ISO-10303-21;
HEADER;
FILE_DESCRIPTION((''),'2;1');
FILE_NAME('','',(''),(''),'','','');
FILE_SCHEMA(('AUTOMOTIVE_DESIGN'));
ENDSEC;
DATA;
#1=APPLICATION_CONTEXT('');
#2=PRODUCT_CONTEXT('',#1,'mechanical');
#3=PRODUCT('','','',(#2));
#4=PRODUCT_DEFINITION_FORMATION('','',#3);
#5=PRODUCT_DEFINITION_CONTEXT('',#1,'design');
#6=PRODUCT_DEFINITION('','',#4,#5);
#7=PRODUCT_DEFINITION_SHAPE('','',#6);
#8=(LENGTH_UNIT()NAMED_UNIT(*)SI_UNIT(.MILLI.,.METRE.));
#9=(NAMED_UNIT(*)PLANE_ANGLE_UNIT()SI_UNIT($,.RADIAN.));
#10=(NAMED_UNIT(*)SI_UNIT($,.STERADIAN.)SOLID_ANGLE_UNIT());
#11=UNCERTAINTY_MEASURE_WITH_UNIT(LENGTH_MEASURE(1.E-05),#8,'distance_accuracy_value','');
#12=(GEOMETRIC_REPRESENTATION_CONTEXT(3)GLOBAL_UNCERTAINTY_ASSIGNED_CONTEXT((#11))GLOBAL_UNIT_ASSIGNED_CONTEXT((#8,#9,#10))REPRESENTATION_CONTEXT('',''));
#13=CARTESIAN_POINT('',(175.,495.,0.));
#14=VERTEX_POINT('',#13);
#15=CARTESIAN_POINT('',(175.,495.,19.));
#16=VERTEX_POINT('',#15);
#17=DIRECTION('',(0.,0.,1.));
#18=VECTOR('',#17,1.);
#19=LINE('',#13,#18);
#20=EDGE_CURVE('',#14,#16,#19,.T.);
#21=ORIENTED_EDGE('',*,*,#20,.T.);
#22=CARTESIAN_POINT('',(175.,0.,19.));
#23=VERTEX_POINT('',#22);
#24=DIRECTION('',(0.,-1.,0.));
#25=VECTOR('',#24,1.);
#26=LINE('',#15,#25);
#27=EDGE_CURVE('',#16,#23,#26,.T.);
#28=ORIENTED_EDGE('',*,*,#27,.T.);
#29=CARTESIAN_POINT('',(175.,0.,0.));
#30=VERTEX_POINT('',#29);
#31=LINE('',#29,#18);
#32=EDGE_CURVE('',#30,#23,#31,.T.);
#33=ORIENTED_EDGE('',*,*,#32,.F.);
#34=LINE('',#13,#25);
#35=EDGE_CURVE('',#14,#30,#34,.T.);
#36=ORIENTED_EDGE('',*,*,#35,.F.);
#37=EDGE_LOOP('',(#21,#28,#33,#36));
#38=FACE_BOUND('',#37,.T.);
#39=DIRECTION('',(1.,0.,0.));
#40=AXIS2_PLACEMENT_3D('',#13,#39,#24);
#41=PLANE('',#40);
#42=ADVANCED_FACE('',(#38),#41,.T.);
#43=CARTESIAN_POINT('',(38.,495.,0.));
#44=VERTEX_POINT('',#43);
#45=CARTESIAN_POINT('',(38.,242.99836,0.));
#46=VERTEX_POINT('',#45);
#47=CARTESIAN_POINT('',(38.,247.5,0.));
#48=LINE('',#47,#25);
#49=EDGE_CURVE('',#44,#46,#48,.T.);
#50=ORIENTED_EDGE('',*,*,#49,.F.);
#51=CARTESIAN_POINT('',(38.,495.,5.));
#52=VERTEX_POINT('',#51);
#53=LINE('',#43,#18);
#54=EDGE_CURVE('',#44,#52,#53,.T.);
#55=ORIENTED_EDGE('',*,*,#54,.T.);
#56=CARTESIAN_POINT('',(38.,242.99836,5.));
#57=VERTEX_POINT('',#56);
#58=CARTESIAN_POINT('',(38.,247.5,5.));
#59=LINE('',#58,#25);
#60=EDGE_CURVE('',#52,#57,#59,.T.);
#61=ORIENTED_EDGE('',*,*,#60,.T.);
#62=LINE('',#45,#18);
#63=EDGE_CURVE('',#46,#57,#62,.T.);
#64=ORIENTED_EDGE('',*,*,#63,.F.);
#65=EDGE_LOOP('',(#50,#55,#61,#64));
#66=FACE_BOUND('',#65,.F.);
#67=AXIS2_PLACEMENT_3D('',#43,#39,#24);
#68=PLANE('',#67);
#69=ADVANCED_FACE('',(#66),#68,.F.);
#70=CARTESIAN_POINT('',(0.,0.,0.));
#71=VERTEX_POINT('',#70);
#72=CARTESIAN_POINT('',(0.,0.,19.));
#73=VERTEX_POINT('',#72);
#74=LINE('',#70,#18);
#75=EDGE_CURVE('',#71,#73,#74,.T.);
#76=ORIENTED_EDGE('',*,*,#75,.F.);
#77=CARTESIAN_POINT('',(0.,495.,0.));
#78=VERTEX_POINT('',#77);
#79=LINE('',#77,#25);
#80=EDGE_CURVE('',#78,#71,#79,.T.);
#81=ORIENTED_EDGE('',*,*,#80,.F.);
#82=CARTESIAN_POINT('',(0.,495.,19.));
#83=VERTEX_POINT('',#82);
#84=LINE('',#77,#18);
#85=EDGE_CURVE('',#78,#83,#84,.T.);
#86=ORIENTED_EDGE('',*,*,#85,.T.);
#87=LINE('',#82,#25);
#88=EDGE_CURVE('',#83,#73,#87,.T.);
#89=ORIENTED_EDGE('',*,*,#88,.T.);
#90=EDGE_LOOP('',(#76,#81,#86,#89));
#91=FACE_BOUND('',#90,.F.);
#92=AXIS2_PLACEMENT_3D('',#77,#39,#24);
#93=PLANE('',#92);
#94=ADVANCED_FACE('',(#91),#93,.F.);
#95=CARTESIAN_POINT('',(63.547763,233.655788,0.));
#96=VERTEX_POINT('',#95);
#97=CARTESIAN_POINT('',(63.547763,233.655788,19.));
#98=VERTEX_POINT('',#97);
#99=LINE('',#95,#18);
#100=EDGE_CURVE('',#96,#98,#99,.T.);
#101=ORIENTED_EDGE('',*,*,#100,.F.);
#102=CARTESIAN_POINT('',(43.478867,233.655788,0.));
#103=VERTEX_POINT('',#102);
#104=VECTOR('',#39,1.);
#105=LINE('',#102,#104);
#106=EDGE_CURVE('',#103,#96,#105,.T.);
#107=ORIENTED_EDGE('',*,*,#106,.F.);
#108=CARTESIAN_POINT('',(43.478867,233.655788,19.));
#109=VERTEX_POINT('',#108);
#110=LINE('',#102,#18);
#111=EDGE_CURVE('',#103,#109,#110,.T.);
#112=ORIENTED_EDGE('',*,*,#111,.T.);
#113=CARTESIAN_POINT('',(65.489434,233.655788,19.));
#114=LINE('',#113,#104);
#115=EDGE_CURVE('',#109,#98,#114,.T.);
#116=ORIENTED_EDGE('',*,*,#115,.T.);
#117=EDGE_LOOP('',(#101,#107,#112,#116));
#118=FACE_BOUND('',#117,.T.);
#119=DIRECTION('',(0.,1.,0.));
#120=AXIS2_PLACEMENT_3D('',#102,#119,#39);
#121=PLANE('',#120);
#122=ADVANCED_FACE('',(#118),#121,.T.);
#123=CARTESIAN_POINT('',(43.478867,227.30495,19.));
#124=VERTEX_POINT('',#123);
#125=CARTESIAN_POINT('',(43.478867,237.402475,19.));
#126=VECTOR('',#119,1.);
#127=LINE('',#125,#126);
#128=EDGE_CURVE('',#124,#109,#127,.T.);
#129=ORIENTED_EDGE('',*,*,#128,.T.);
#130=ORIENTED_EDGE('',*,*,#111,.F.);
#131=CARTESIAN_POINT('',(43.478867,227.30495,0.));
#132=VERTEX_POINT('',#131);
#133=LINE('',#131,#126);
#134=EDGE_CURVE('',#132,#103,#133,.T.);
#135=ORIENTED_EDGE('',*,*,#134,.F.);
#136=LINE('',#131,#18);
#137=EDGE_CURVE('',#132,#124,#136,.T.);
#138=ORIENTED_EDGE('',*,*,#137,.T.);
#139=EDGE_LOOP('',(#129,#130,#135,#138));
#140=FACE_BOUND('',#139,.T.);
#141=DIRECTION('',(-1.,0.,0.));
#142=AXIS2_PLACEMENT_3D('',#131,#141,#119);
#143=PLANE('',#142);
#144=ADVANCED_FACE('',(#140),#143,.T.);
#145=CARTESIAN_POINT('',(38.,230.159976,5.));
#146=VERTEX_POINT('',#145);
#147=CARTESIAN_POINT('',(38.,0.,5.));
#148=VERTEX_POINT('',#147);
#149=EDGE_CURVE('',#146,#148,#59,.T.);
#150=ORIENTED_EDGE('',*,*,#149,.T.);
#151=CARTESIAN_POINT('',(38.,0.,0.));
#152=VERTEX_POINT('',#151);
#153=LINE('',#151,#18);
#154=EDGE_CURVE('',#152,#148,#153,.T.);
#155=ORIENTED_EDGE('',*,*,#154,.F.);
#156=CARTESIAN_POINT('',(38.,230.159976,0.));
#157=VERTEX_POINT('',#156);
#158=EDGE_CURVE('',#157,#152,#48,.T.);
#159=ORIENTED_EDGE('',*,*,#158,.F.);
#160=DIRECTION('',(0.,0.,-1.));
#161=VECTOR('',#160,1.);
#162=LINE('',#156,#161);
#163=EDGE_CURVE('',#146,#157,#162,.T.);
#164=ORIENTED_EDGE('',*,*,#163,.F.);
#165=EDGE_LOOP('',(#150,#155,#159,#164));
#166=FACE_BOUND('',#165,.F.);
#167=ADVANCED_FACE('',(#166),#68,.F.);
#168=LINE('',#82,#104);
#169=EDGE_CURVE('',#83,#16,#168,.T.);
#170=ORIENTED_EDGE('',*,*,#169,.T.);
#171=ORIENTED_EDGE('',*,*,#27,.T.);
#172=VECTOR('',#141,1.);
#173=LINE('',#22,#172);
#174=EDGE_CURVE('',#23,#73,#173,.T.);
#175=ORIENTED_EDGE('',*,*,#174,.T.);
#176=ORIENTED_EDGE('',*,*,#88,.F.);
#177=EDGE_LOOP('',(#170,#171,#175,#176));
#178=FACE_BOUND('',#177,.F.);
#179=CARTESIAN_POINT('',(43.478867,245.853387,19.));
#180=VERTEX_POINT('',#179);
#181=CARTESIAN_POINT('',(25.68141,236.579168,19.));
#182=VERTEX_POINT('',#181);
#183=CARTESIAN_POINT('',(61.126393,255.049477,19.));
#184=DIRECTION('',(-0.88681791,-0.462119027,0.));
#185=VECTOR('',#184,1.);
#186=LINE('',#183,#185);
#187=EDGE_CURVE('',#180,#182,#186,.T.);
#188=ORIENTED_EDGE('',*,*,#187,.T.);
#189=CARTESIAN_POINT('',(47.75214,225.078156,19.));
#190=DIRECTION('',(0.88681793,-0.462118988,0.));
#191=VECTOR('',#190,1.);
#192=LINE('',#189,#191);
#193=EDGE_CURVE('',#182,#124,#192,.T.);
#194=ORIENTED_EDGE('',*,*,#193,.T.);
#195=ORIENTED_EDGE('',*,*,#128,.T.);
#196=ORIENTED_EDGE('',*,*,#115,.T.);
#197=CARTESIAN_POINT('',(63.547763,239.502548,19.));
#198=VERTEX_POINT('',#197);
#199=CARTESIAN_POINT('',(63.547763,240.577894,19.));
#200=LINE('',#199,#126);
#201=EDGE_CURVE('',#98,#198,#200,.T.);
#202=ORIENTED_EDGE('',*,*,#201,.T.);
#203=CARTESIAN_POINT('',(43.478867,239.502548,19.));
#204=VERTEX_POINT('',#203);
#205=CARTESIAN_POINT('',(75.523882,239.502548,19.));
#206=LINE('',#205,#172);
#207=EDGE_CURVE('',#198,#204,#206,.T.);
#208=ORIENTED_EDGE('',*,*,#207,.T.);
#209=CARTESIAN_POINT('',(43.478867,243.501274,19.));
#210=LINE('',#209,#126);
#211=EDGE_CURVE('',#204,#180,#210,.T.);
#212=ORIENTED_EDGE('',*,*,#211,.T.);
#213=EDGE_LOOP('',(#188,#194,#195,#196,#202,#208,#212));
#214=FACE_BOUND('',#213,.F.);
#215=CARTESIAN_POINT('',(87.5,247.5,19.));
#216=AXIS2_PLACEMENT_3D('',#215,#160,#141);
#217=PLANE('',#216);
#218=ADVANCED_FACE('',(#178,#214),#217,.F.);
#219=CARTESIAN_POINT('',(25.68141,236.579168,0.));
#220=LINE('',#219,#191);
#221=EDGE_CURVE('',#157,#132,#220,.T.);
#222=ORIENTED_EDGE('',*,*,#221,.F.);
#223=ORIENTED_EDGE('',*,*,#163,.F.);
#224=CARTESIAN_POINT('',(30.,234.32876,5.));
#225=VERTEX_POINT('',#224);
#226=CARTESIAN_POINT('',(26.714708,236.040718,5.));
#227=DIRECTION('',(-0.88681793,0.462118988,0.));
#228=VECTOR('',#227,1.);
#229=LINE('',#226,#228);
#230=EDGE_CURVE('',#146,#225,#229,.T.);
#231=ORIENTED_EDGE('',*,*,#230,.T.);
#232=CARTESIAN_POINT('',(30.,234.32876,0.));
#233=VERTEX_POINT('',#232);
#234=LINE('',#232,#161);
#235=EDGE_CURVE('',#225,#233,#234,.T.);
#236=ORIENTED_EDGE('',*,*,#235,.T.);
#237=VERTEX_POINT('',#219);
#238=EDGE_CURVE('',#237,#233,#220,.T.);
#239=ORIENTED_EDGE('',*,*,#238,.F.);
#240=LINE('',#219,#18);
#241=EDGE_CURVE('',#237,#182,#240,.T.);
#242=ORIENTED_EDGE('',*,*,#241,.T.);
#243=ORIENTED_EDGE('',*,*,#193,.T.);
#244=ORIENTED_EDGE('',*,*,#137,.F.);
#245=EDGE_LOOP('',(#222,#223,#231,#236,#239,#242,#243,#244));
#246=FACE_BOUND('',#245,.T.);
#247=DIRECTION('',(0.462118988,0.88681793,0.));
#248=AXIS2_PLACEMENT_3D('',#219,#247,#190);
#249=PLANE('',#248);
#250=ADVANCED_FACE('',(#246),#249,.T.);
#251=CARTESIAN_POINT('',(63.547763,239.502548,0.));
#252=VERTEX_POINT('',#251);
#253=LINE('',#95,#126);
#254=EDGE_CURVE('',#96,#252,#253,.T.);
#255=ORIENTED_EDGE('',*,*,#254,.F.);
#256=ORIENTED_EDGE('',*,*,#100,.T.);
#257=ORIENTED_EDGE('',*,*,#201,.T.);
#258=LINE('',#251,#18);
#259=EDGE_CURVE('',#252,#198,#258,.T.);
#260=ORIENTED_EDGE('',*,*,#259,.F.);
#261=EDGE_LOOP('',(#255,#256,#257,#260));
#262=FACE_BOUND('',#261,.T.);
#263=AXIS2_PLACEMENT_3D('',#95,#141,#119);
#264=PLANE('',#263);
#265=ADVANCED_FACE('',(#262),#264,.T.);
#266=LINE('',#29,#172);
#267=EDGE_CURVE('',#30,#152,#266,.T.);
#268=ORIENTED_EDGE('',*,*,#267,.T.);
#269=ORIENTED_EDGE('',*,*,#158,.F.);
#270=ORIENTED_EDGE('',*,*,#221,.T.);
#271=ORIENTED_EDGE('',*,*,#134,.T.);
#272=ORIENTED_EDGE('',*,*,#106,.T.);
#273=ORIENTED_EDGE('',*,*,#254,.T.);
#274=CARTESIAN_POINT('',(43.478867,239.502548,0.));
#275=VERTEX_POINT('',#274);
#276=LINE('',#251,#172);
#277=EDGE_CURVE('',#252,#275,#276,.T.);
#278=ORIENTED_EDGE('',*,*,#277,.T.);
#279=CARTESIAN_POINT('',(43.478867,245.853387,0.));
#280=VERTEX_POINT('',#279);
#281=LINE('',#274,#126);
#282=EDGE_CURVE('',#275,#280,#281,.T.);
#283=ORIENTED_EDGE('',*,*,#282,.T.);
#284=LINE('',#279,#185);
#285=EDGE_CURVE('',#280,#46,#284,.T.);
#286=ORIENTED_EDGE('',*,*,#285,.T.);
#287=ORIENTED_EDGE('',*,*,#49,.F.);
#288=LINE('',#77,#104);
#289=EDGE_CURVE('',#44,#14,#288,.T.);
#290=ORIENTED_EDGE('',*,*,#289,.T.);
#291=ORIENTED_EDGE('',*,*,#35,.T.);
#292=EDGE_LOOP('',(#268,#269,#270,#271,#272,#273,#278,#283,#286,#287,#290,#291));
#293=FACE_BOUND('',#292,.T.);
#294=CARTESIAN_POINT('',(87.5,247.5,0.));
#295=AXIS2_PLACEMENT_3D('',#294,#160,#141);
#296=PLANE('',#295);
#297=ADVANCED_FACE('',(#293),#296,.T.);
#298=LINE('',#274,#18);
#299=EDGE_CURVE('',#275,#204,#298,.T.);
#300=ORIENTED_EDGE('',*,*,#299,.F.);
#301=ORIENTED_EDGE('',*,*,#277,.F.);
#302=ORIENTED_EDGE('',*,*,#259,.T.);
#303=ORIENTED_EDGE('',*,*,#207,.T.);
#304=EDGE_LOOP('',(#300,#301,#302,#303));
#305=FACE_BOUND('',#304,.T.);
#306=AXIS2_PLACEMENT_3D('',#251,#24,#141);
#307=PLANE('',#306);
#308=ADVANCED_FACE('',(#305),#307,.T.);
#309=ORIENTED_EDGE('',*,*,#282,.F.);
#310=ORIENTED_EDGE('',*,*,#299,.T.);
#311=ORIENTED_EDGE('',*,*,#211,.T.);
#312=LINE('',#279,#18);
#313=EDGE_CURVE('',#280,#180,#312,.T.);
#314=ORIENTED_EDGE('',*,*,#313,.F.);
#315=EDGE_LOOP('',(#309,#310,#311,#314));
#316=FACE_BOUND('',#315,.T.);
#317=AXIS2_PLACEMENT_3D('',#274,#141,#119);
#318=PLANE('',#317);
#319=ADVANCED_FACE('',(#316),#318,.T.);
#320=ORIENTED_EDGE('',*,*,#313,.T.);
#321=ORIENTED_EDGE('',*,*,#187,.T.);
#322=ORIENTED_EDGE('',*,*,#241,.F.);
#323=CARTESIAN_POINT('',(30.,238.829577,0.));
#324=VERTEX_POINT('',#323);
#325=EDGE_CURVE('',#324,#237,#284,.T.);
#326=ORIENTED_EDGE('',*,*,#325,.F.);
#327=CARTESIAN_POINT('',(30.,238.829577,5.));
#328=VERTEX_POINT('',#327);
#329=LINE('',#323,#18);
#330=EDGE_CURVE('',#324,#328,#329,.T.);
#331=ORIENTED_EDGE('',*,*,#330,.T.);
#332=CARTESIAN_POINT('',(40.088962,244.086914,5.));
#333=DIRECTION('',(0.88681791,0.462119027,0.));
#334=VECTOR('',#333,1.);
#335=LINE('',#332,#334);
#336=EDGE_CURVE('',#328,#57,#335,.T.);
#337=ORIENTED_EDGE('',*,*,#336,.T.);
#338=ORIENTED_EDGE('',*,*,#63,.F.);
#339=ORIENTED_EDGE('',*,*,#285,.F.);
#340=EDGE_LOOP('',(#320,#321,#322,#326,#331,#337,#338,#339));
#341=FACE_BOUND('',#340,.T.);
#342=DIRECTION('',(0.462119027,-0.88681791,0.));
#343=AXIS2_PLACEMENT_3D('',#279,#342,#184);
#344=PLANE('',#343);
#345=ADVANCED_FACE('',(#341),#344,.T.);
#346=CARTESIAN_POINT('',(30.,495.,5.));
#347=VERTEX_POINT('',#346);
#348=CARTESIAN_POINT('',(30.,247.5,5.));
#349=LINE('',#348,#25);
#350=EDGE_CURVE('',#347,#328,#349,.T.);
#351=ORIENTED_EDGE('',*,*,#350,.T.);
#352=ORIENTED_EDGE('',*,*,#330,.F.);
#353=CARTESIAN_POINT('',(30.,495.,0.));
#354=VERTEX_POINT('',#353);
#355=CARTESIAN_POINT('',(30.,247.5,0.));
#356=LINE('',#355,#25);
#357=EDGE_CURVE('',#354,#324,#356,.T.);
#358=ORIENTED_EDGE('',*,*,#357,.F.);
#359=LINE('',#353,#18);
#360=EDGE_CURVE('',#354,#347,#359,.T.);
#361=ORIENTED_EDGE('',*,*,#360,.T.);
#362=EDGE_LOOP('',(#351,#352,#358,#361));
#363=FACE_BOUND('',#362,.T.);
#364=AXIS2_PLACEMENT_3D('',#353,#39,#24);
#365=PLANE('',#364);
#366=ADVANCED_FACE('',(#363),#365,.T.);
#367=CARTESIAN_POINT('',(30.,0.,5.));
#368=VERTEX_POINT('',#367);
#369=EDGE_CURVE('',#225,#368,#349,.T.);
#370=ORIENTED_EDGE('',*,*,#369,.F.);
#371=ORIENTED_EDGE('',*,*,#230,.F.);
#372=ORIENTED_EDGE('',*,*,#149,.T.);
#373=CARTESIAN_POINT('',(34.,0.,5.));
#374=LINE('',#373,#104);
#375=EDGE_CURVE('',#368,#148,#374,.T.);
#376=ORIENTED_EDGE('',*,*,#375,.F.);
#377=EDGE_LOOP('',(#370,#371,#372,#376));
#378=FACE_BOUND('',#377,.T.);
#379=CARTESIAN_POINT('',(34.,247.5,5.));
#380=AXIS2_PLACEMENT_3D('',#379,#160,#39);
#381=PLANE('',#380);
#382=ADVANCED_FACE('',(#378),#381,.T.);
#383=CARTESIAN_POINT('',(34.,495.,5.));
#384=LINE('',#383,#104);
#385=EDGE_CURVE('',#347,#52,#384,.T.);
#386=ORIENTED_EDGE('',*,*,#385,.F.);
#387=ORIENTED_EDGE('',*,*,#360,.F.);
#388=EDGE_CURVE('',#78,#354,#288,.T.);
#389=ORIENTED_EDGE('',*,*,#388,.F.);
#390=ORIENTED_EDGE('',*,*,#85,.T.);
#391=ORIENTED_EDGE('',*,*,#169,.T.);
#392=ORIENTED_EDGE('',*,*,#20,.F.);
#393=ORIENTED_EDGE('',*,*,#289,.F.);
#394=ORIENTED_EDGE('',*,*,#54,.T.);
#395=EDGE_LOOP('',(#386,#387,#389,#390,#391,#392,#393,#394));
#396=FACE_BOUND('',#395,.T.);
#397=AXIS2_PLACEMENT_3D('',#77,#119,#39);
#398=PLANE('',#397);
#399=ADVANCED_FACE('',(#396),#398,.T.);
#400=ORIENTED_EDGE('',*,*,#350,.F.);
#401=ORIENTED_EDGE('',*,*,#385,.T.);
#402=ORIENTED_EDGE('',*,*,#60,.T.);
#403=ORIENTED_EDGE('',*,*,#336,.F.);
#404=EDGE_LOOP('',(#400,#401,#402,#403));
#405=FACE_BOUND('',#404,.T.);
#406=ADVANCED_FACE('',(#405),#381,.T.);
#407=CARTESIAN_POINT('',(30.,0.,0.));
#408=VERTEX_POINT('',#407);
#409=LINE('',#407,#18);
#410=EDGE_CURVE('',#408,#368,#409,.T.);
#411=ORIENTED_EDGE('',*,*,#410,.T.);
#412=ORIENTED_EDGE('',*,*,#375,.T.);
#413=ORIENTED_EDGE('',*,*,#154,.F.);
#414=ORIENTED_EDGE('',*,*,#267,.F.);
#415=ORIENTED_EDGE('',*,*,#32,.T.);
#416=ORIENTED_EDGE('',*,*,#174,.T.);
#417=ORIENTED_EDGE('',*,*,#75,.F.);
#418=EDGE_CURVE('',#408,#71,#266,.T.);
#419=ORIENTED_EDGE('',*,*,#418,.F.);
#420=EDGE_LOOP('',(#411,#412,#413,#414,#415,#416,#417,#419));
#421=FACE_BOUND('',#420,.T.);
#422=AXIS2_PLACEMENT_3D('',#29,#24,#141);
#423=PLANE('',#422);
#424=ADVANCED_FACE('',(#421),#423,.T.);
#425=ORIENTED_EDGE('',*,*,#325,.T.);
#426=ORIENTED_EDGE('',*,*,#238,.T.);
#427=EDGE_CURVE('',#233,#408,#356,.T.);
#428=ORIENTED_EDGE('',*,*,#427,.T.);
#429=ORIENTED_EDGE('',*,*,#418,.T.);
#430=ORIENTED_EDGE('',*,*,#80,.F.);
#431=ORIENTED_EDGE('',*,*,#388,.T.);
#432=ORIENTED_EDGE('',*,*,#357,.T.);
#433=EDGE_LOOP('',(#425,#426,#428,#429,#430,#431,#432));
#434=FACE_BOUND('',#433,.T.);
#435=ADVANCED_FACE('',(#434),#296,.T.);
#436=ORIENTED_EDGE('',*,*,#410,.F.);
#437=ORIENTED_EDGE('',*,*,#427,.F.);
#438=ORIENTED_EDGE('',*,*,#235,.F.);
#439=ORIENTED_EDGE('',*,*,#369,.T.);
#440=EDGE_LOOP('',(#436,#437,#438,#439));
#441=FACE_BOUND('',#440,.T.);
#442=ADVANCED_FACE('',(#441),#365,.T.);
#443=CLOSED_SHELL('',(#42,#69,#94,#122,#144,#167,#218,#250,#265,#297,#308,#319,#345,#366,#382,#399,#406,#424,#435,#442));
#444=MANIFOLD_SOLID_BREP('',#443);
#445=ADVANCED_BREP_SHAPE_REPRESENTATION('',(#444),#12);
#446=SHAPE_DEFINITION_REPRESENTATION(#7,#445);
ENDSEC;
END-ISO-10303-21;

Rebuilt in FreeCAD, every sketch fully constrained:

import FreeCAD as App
import Part
import Sketcher
from FreeCAD import Vector

doc = App.newDocument("Part")
body = doc.addObject("PartDesign::Body", "Body")

# Sketch on XY plane
sketch1 = doc.addObject("Sketcher::SketchObject", "Sketch")
body.addObject(sketch1)
sketch1.AttachmentSupport = (doc.XY_Plane, [""])
sketch1.MapMode = "FlatFace"
sketch1.addGeometry([
    Part.LineSegment(Vector(175, 495, 0), Vector(0, 495, 0)),
    Part.LineSegment(Vector(0, 495, 0), Vector(0, 0, 0)),
    Part.LineSegment(Vector(0, 0, 0), Vector(175, 0, 0)),
    Part.LineSegment(Vector(175, 0, 0), Vector(175, 495, 0)),
], False)
sketch1.addConstraint([
    Sketcher.Constraint("Coincident", 0, 2, 1, 1),
    Sketcher.Constraint("Coincident", 1, 2, 2, 1),
    Sketcher.Constraint("Coincident", 2, 2, 3, 1),
    Sketcher.Constraint("Coincident", 3, 2, 0, 1),
    Sketcher.Constraint("Horizontal", 0),
    Sketcher.Constraint("Vertical", 1),
    Sketcher.Constraint("Horizontal", 2),
    Sketcher.Constraint("Vertical", 3),
    Sketcher.Constraint("Coincident", 1, 2, -1, 1),
    Sketcher.Constraint("DistanceX", 0, 2, 0, 1, 175.0),
    Sketcher.Constraint("DistanceY", 1, 2, 1, 1, 495.0),
])
pad1 = doc.addObject("PartDesign::Pad", "Pad")
body.addObject(pad1)
pad1.Profile = sketch1
pad1.Length = 19

# Sketch on XY plane
sketch2 = doc.addObject("Sketcher::SketchObject", "Sketch001")
body.addObject(sketch2)
sketch2.AttachmentSupport = (doc.XY_Plane, [""])
sketch2.MapMode = "FlatFace"
sketch2.addGeometry([
    Part.LineSegment(Vector(26, 237, 0), Vector(43, 246, 0)),  # 0
    Part.LineSegment(Vector(43, 246, 0), Vector(43, 240, 0)),  # 1
    Part.LineSegment(Vector(43, 240, 0), Vector(64, 240, 0)),  # 2
    Part.LineSegment(Vector(64, 240, 0), Vector(64, 234, 0)),  # 3
    Part.LineSegment(Vector(64, 234, 0), Vector(43, 234, 0)),  # 4
    Part.LineSegment(Vector(43, 234, 0), Vector(43, 227, 0)),  # 5
    Part.LineSegment(Vector(43, 227, 0), Vector(26, 237, 0)),  # 6
], False)
sketch2.addConstraint([
    Sketcher.Constraint("Coincident", 0, 2, 1, 1),
    Sketcher.Constraint("Coincident", 1, 2, 2, 1),
    Sketcher.Constraint("Coincident", 2, 2, 3, 1),
    Sketcher.Constraint("Coincident", 3, 2, 4, 1),
    Sketcher.Constraint("Coincident", 4, 2, 5, 1),
    Sketcher.Constraint("Coincident", 5, 2, 6, 1),
    Sketcher.Constraint("Coincident", 6, 2, 0, 1),
    Sketcher.Constraint("Vertical", 1),
    Sketcher.Constraint("Horizontal", 2),
    Sketcher.Constraint("Vertical", 3),
    Sketcher.Constraint("Horizontal", 4),
    Sketcher.Constraint("Vertical", 5),
    Sketcher.Constraint("Vertical", 1, 2, 4, 2),
    Sketcher.Constraint("Equal", 1, 5),
    Sketcher.Constraint("Equal", 0, 6),
    Sketcher.Constraint("DistanceY", 1, 2, 1, 1, 6.350839),
    Sketcher.Constraint("DistanceY", 3, 2, 3, 1, 5.84676),
    Sketcher.Constraint("DistanceX", 2, 1, 2, 2, 20.068896),
    Sketcher.Constraint("DistanceY", -1, 1, 3, 2, 233.655788),
    Sketcher.Constraint("DistanceX", -1, 1, 6, 2, 25.68141),
    Sketcher.Constraint("Distance", 0, 20.068897),
])
pocket1 = doc.addObject("PartDesign::Pocket", "Pocket")
body.addObject(pocket1)
pocket1.Profile = sketch2
pocket1.Length = 20
pocket1.Reversed = True

# Sketch on XY plane
sketch3 = doc.addObject("Sketcher::SketchObject", "Sketch002")
body.addObject(sketch3)
sketch3.AttachmentSupport = (doc.XY_Plane, [""])
sketch3.MapMode = "FlatFace"
sketch3.addGeometry([
    Part.LineSegment(Vector(30, 0, 0), Vector(30, 495, 0)),
    Part.LineSegment(Vector(30, 495, 0), Vector(38, 495, 0)),
    Part.LineSegment(Vector(38, 495, 0), Vector(38, 0, 0)),
    Part.LineSegment(Vector(38, 0, 0), Vector(30, 0, 0)),
], False)
sketch3.addConstraint([
    Sketcher.Constraint("Coincident", 0, 2, 1, 1),
    Sketcher.Constraint("Coincident", 1, 2, 2, 1),
    Sketcher.Constraint("Coincident", 2, 2, 3, 1),
    Sketcher.Constraint("Coincident", 3, 2, 0, 1),
    Sketcher.Constraint("Vertical", 0),
    Sketcher.Constraint("Horizontal", 1),
    Sketcher.Constraint("Vertical", 2),
    Sketcher.Constraint("Horizontal", 3),
    Sketcher.Constraint("PointOnObject", 2, 2, -1),
    Sketcher.Constraint("DistanceX", 1, 1, 1, 2, 8.0),
    Sketcher.Constraint("DistanceY", 0, 1, 0, 2, 495.0),
    Sketcher.Constraint("DistanceX", -1, 1, 0, 2, 30.0),
])
pocket2 = doc.addObject("PartDesign::Pocket", "Pocket001")
body.addObject(pocket2)
pocket2.Profile = sketch3
pocket2.Length = 5
pocket2.Reversed = True

doc.recompute()
